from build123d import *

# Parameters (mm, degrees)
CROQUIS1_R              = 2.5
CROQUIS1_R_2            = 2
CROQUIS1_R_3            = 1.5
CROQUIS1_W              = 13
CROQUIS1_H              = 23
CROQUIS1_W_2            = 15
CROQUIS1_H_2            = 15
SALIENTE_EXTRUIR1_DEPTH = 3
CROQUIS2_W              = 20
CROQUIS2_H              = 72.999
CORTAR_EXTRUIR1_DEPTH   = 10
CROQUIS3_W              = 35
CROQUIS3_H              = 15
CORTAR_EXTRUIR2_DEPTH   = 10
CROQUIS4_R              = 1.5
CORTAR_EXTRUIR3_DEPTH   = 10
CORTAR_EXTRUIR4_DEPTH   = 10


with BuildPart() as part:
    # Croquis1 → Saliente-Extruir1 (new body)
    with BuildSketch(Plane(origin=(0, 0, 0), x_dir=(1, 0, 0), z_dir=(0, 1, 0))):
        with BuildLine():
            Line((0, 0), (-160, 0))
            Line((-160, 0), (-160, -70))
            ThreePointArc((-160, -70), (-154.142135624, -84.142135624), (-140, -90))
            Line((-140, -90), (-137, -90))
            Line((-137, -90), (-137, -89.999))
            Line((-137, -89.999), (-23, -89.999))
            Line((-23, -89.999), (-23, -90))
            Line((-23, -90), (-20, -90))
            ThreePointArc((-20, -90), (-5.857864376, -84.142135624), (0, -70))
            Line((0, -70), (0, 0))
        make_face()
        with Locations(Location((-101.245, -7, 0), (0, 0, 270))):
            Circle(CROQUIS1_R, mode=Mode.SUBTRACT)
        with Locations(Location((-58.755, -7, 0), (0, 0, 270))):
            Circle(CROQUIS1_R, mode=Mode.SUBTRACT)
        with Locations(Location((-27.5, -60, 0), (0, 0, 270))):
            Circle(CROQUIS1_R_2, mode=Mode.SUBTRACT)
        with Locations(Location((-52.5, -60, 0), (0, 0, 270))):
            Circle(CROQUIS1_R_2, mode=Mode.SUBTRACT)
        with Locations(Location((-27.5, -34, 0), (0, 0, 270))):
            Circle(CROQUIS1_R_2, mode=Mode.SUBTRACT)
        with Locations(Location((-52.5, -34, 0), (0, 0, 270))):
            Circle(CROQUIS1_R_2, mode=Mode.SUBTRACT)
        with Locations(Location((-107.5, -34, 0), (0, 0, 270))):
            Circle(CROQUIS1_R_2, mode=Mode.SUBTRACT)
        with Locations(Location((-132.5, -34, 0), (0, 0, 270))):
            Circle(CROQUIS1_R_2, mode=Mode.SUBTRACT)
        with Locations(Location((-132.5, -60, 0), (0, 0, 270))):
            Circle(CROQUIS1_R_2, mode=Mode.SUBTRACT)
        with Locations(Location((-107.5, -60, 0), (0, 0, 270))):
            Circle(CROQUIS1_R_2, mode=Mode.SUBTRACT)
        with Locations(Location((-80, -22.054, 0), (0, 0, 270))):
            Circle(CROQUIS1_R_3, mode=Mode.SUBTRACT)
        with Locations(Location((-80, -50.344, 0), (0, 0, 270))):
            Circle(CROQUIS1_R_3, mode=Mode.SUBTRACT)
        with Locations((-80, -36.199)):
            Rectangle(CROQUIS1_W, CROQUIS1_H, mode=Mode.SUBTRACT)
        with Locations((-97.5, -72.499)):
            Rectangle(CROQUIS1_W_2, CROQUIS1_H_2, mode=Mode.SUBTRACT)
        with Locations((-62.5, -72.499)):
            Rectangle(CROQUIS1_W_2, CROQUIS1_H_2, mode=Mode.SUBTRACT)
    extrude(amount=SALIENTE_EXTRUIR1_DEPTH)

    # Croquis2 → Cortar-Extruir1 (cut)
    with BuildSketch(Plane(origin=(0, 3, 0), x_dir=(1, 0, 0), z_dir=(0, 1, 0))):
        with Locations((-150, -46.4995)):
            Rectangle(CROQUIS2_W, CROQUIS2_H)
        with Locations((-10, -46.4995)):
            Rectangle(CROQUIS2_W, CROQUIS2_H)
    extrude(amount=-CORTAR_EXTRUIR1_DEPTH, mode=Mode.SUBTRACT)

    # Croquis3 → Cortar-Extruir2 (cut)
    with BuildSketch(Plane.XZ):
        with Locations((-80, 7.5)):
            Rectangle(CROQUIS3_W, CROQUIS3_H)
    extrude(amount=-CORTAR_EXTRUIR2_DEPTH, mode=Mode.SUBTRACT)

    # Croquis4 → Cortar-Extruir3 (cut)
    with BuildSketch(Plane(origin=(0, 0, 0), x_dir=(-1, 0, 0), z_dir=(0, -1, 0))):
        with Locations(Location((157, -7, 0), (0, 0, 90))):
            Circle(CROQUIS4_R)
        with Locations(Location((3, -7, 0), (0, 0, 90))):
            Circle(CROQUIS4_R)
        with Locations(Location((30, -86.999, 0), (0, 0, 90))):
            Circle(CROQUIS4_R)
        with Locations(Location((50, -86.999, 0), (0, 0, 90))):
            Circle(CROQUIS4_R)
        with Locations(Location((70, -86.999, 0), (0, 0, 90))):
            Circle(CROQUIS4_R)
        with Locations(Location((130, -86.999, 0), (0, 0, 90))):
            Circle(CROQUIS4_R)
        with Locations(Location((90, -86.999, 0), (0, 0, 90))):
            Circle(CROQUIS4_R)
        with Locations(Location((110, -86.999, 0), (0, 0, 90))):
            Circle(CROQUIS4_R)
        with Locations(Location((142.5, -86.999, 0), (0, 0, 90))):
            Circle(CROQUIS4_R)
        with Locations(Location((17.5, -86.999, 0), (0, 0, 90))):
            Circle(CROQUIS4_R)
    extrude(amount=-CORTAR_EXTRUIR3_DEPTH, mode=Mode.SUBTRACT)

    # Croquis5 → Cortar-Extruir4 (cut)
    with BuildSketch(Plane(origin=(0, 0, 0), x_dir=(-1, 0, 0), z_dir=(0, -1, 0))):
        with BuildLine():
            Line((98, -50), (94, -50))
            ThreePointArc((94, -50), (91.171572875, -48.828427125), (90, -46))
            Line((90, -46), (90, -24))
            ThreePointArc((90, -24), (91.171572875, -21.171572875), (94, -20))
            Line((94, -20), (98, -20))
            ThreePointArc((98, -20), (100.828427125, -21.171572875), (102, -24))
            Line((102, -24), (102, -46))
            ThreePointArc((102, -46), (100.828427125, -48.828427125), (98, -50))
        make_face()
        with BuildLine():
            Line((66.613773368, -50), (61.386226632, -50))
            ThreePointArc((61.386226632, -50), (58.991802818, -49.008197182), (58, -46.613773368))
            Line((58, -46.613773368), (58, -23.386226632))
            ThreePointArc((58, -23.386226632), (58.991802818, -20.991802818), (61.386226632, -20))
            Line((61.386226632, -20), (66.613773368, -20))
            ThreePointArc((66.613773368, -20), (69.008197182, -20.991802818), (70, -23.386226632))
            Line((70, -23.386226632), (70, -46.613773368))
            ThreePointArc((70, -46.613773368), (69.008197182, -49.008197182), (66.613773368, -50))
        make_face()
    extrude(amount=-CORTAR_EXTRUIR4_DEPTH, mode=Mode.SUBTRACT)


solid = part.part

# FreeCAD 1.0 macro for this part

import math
import FreeCAD as App
import Part
import Sketcher

V = App.Vector
Q = App.Units.Quantity


def add_polygon(sketch, points):
    """Adds a closed chain of lines whose ends are joined by coincident constraints."""
    first, n = sketch.GeometryCount, len(points)
    for a, b in zip(points, points[1:] + points[:1]):
        sketch.addGeometry(Part.LineSegment(App.Vector(*a, 0), App.Vector(*b, 0)), False)
    for i in range(n):
        sketch.addConstraint(Sketcher.Constraint("Coincident", first + i, 2, first + (i + 1) % n, 1))

doc = App.newDocument("Part")
body = doc.addObject("PartDesign::Body", "Body")

sketch1 = body.newObject("Sketcher::SketchObject", "Sketch")
sketch1.AttachmentSupport = (doc.getObject("XZ_Plane"), [""])
sketch1.MapMode = "FlatFace"
sketch1.addGeometry(Part.LineSegment(V(0, 0, 0), V(-160, 0, 0)), False)
sketch1.addGeometry(Part.LineSegment(V(-160, 0, 0), V(-160, 70, 0)), False)
sketch1.addGeometry(Part.ArcOfCircle(Part.Circle(V(-140, 70, 0), V(0, 0, 1), 20), math.radians(90), math.radians(180)), False)
sketch1.addGeometry(Part.LineSegment(V(-140, 90, 0), V(-137, 90, 0)), False)
sketch1.addGeometry(Part.LineSegment(V(-137, 90, 0), V(-137, 89.999, 0)), False)
sketch1.addGeometry(Part.LineSegment(V(-137, 89.999, 0), V(-23, 89.999, 0)), False)
sketch1.addGeometry(Part.LineSegment(V(-23, 89.999, 0), V(-23, 90, 0)), False)
sketch1.addGeometry(Part.LineSegment(V(-23, 90, 0), V(-20, 90, 0)), False)
sketch1.addGeometry(Part.ArcOfCircle(Part.Circle(V(-20, 70, 0), V(0, 0, 1), 20), math.radians(0), math.radians(90)), False)
sketch1.addGeometry(Part.LineSegment(V(0, 70, 0), V(0, 0, 0)), False)
add_polygon(sketch1, [(-90, 79.999), (-105, 79.999), (-105, 64.999), (-90, 64.999)])
sketch1.addGeometry(Part.Circle(V(-132.5, 60, 0), V(0, 0, 1), 2), False)
sketch1.addGeometry(Part.Circle(V(-107.5, 60, 0), V(0, 0, 1), 2), False)
add_polygon(sketch1, [(-55, 79.999), (-70, 79.999), (-70, 64.999), (-55, 64.999)])
sketch1.addGeometry(Part.Circle(V(-80, 50.344, 0), V(0, 0, 1), 1.5), False)
sketch1.addGeometry(Part.Circle(V(-52.5, 60, 0), V(0, 0, 1), 2), False)
sketch1.addGeometry(Part.Circle(V(-27.5, 60, 0), V(0, 0, 1), 2), False)
sketch1.addGeometry(Part.Circle(V(-132.5, 34, 0), V(0, 0, 1), 2), False)
sketch1.addGeometry(Part.Circle(V(-107.5, 34, 0), V(0, 0, 1), 2), False)
sketch1.addGeometry(Part.Circle(V(-101.245, 7, 0), V(0, 0, 1), 2.5), False)
add_polygon(sketch1, [(-73.5, 47.699), (-86.5, 47.699), (-86.5, 24.699), (-73.5, 24.699)])
sketch1.addGeometry(Part.Circle(V(-52.5, 34, 0), V(0, 0, 1), 2), False)
sketch1.addGeometry(Part.Circle(V(-27.5, 34, 0), V(0, 0, 1), 2), False)
sketch1.addGeometry(Part.Circle(V(-80, 22.054, 0), V(0, 0, 1), 1.5), False)
sketch1.addGeometry(Part.Circle(V(-58.755, 7, 0), V(0, 0, 1), 2.5), False)
sketch1.addConstraint([
    Sketcher.Constraint("Coincident", 0, 2, 1, 1),
    Sketcher.Constraint("Tangent", 1, 2, 2, 2),
    Sketcher.Constraint("Tangent", 2, 1, 3, 1),
    Sketcher.Constraint("Coincident", 3, 2, 4, 1),
    Sketcher.Constraint("Coincident", 4, 2, 5, 1),
    Sketcher.Constraint("Coincident", 5, 2, 6, 1),
    Sketcher.Constraint("Coincident", 6, 2, 7, 1),
    Sketcher.Constraint("Tangent", 7, 2, 8, 2),
    Sketcher.Constraint("Tangent", 8, 1, 9, 1),
    Sketcher.Constraint("Coincident", 9, 2, 0, 1),
    Sketcher.Constraint("Horizontal", 0),
    Sketcher.Constraint("Vertical", 1),
    Sketcher.Constraint("Horizontal", 3),
    Sketcher.Constraint("Vertical", 4),
    Sketcher.Constraint("Horizontal", 5),
    Sketcher.Constraint("Vertical", 6),
    Sketcher.Constraint("Horizontal", 7),
    Sketcher.Constraint("Vertical", 9),
    Sketcher.Constraint("Horizontal", 10),
    Sketcher.Constraint("Vertical", 11),
    Sketcher.Constraint("Horizontal", 12),
    Sketcher.Constraint("Vertical", 13),
    Sketcher.Constraint("Horizontal", 16),
    Sketcher.Constraint("Vertical", 17),
    Sketcher.Constraint("Horizontal", 18),
    Sketcher.Constraint("Vertical", 19),
    Sketcher.Constraint("Horizontal", 26),
    Sketcher.Constraint("Vertical", 27),
    Sketcher.Constraint("Horizontal", 28),
    Sketcher.Constraint("Vertical", 29),
    Sketcher.Constraint("Coincident", 9, 2, -1, 1),
    Sketcher.Constraint("Equal", 2, 8),
    Sketcher.Constraint("Equal", 14, 15),
    Sketcher.Constraint("Equal", 15, 21),
    Sketcher.Constraint("Equal", 21, 22),
    Sketcher.Constraint("Equal", 22, 23),
    Sketcher.Constraint("Equal", 23, 24),
    Sketcher.Constraint("Equal", 24, 30),
    Sketcher.Constraint("Equal", 30, 31),
    Sketcher.Constraint("Equal", 20, 32),
    Sketcher.Constraint("Equal", 25, 33),
    Sketcher.Constraint("Horizontal", 2, 3, 8, 3),
    Sketcher.Constraint("Horizontal", 14, 3, 15, 3),
    Sketcher.Constraint("Horizontal", 15, 3, 21, 3),
    Sketcher.Constraint("Horizontal", 21, 3, 22, 3),
    Sketcher.Constraint("Horizontal", 23, 3, 24, 3),
    Sketcher.Constraint("Horizontal", 24, 3, 30, 3),
    Sketcher.Constraint("Horizontal", 30, 3, 31, 3),
    Sketcher.Constraint("Horizontal", 25, 3, 33, 3),
    Sketcher.Constraint("Horizontal", 13, 2, 16, 2),
    Sketcher.Constraint("Horizontal", 12, 2, 17, 2),
    Sketcher.Constraint("Vertical", 14, 3, 23, 3),
    Sketcher.Constraint("Vertical", 15, 3, 24, 3),
    Sketcher.Constraint("Vertical", 21, 3, 30, 3),
    Sketcher.Constraint("Vertical", 22, 3, 31, 3),
    Sketcher.Constraint("Vertical", 20, 3, 32, 3),
    Sketcher.Constraint("Equal", 3, 7),
    Sketcher.Constraint("Equal", 12, 16),
    Sketcher.Constraint("Equal", 18, 11),
    Sketcher.Constraint("Diameter", 14, Q("4 mm")),
    Sketcher.Constraint("Diameter", 20, Q("3 mm")),
    Sketcher.Constraint("Diameter", 25, Q("5 mm")),
    Sketcher.Constraint("Radius", 2, Q("20 mm")),
    Sketcher.Constraint("DistanceX", 0, 2, 0, 1, Q("160 mm")),
    Sketcher.Constraint("DistanceX", 3, 1, 3, 2, Q("3 mm")),
    Sketcher.Constraint("DistanceX", 10, 2, 10, 1, Q("15 mm")),
    Sketcher.Constraint("DistanceX", 26, 2, 26, 1, Q("13 mm")),
    Sketcher.Constraint("DistanceY", 1, 1, 1, 2, Q("70 mm")),
    Sketcher.Constraint("DistanceY", 27, 2, 27, 1, Q("23 mm")),
    Sketcher.Constraint("DistanceY", -1, 1, 14, 3, Q("60 mm")),
    Sketcher.Constraint("DistanceX", 20, 3, -1, 1, Q("80 mm")),
    Sketcher.Constraint("DistanceY", -1, 1, 23, 3, Q("34 mm")),
    Sketcher.Constraint("DistanceY", -1, 1, 25, 3, Q("7 mm")),
    Sketcher.Constraint("DistanceX", 10, 2, -1, 1, Q("105 mm")),
    Sketcher.Constraint("DistanceX", 16, 2, -1, 1, Q("70 mm")),
    Sketcher.Constraint("DistanceX", 14, 3, 15, 3, Q("25 mm")),
    Sketcher.Constraint("DistanceX", 15, 3, 21, 3, Q("55 mm")),
    Sketcher.Constraint("DistanceX", 21, 3, 22, 3, Q("25 mm")),
    Sketcher.Constraint("DistanceY", 10, 2, 4, 2, Q("10 mm")),
    Sketcher.Constraint("DistanceX", 15, 3, 26, 2, Q("21 mm")),
    Sketcher.Constraint("DistanceX", 14, 3, -1, 1, Q("132.5 mm")),
    Sketcher.Constraint("DistanceY", 26, 2, 12, 2, Q("17.3 mm")),
    Sketcher.Constraint("DistanceY", 4, 2, 4, 1, Q("0.001 mm")),
    Sketcher.Constraint("DistanceY", 32, 3, 20, 3, Q("28.29 mm")),
    Sketcher.Constraint("DistanceX", 25, 3, 33, 3, Q("42.49 mm")),
    Sketcher.Constraint("DistanceY", -1, 1, 20, 3, Q("50.344 mm")),
    Sketcher.Constraint("DistanceX", 25, 3, -1, 1, Q("101.245 mm")),
])
pad1 = body.newObject("PartDesign::Pad", "Pad")
pad1.Profile = sketch1
pad1.Length = 3
pad1.Reversed = True

sketch2 = body.newObject("Sketcher::SketchObject", "Sketch001")
sketch2.AttachmentSupport = (doc.getObject("XZ_Plane"), [""])
sketch2.MapMode = "FlatFace"
sketch2.AttachmentOffset = App.Placement(V(0, 0, -3), App.Rotation())
add_polygon(sketch2, [(-160, 10), (-160, 82.999), (-140, 82.999), (-140, 10)])
add_polygon(sketch2, [(-20, 10), (-20, 82.999), (0, 82.999), (0, 10)])
sketch2.addConstraint([
    Sketcher.Constraint("Vertical", 0),
    Sketcher.Constraint("Horizontal", 1),
    Sketcher.Constraint("Vertical", 2),
    Sketcher.Constraint("Horizontal", 3),
    Sketcher.Constraint("Vertical", 4),
    Sketcher.Constraint("Horizontal", 5),
    Sketcher.Constraint("Vertical", 6),
    Sketcher.Constraint("Horizontal", 7),
    Sketcher.Constraint("PointOnObject", 5, 2, -2),
    Sketcher.Constraint("Horizontal", 1, 2, 4, 2),
    Sketcher.Constraint("Horizontal", 3, 2, 6, 2),
    Sketcher.Constraint("Equal", 3, 5),
    Sketcher.Constraint("DistanceX", 1, 1, 1, 2, Q("20 mm")),
    Sketcher.Constraint("DistanceX", 0, 2, -1, 1, Q("160 mm")),
    Sketcher.Constraint("DistanceY", -1, 1, 2, 2, Q("10 mm")),
    Sketcher.Constraint("DistanceY", 0, 1, 0, 2, Q("72.999 mm")),
])
pocket1 = body.newObject("PartDesign::Pocket", "Pocket")
pocket1.Profile = sketch2
pocket1.Length = 10
pocket1.Reversed = True

sketch3 = body.newObject("Sketcher::SketchObject", "Sketch002")
sketch3.AttachmentSupport = (doc.getObject("XZ_Plane"), [""])
sketch3.MapMode = "FlatFace"
add_polygon(sketch3, [(-97.5, 15), (-97.5, 0), (-62.5, 0), (-62.5, 15)])
sketch3.addConstraint([
    Sketcher.Constraint("Vertical", 0),
    Sketcher.Constraint("Horizontal", 1),
    Sketcher.Constraint("Vertical", 2),
    Sketcher.Constraint("Horizontal", 3),
    Sketcher.Constraint("PointOnObject", 0, 2, -1),
    Sketcher.Constraint("DistanceX", 1, 1, 1, 2, Q("35 mm")),
    Sketcher.Constraint("DistanceY", 0, 2, 0, 1, Q("15 mm")),
    Sketcher.Constraint("DistanceX", 0, 2, -1, 1, Q("97.5 mm")),
])
pocket2 = body.newObject("PartDesign::Pocket", "Pocket001")
pocket2.Profile = sketch3
pocket2.Length = 10

sketch4 = body.newObject("Sketcher::SketchObject", "Sketch003")
sketch4.AttachmentSupport = (doc.getObject("XZ_Plane"), [""])
sketch4.MapMode = "FlatFace"
sketch4.addGeometry([
    Part.Circle(V(-157, 7, 0), V(0, 0, 1), 1.5),
    Part.Circle(V(-3, 7, 0), V(0, 0, 1), 1.5),
    Part.Circle(V(-30, 86.999, 0), V(0, 0, 1), 1.5),
    Part.Circle(V(-50, 86.999, 0), V(0, 0, 1), 1.5),
    Part.Circle(V(-70, 86.999, 0), V(0, 0, 1), 1.5),
    Part.Circle(V(-130, 86.999, 0), V(0, 0, 1), 1.5),
    Part.Circle(V(-90, 86.999, 0), V(0, 0, 1), 1.5),
    Part.Circle(V(-110, 86.999, 0), V(0, 0, 1), 1.5),
    Part.Circle(V(-142.5, 86.999, 0), V(0, 0, 1), 1.5),
    Part.Circle(V(-17.5, 86.999, 0), V(0, 0, 1), 1.5),
], False)
sketch4.addConstraint([
    Sketcher.Constraint("Equal", 0, 1),
    Sketcher.Constraint("Equal", 1, 2),
    Sketcher.Constraint("Equal", 2, 3),
    Sketcher.Constraint("Equal", 3, 4),
    Sketcher.Constraint("Equal", 4, 5),
    Sketcher.Constraint("Equal", 5, 6),
    Sketcher.Constraint("Equal", 6, 7),
    Sketcher.Constraint("Equal", 7, 8),
    Sketcher.Constraint("Equal", 8, 9),
    Sketcher.Constraint("Horizontal", 0, 3, 1, 3),
    Sketcher.Constraint("Horizontal", 2, 3, 3, 3),
    Sketcher.Constraint("Horizontal", 3, 3, 4, 3),
    Sketcher.Constraint("Horizontal", 4, 3, 5, 3),
    Sketcher.Constraint("Horizontal", 5, 3, 6, 3),
    Sketcher.Constraint("Horizontal", 6, 3, 7, 3),
    Sketcher.Constraint("Horizontal", 7, 3, 8, 3),
    Sketcher.Constraint("Horizontal", 8, 3, 9, 3),
    Sketcher.Constraint("Diameter", 0, Q("3 mm")),
    Sketcher.Constraint("DistanceX", 0, 3, -1, 1, Q("157 mm")),
    Sketcher.Constraint("DistanceY", -1, 1, 0, 3, Q("7 mm")),
    Sketcher.Constraint("DistanceX", 1, 3, -1, 1, Q("3 mm")),
    Sketcher.Constraint("DistanceX", 2, 3, -1, 1, Q("30 mm")),
    Sketcher.Constraint("DistanceX", 3, 3, -1, 1, Q("50 mm")),
    Sketcher.Constraint("DistanceX", 4, 3, -1, 1, Q("70 mm")),
    Sketcher.Constraint("DistanceX", 5, 3, -1, 1, Q("130 mm")),
    Sketcher.Constraint("DistanceX", 6, 3, -1, 1, Q("90 mm")),
    Sketcher.Constraint("DistanceX", 7, 3, -1, 1, Q("110 mm")),
    Sketcher.Constraint("DistanceX", 8, 3, -1, 1, Q("142.5 mm")),
    Sketcher.Constraint("DistanceX", 9, 3, -1, 1, Q("17.5 mm")),
    Sketcher.Constraint("DistanceY", -1, 1, 2, 3, Q("86.999 mm")),
])
pocket3 = body.newObject("PartDesign::Pocket", "Pocket002")
pocket3.Profile = sketch4
pocket3.Length = 10

sketch5 = body.newObject("Sketcher::SketchObject", "Sketch004")
sketch5.AttachmentSupport = (doc.getObject("XZ_Plane"), [""])
sketch5.MapMode = "FlatFace"
sketch5.addGeometry([
    Part.LineSegment(V(-94, 50, 0), V(-98, 50, 0)),
    Part.ArcOfCircle(Part.Circle(V(-98, 46, 0), V(0, 0, 1), 4), math.radians(90), math.radians(180)),
    Part.LineSegment(V(-102, 46, 0), V(-102, 24, 0)),
    Part.ArcOfCircle(Part.Circle(V(-98, 24, 0), V(0, 0, 1), 4), math.radians(180), math.radians(270)),
    Part.LineSegment(V(-98, 20, 0), V(-94, 20, 0)),
    Part.ArcOfCircle(Part.Circle(V(-94, 24, 0), V(0, 0, 1), 4), math.radians(-90), math.radians(0)),
    Part.LineSegment(V(-90, 24, 0), V(-90, 46, 0)),
    Part.ArcOfCircle(Part.Circle(V(-94, 46, 0), V(0, 0, 1), 4), math.radians(0), math.radians(90)),
    Part.LineSegment(V(-61.386227, 50, 0), V(-66.613773, 50, 0)),
    Part.ArcOfCircle(Part.Circle(V(-66.613773, 46.613773, 0), V(0, 0, 1), 3.386227), math.radians(90), math.radians(180)),
    Part.LineSegment(V(-70, 46.613773, 0), V(-70, 23.386227, 0)),
    Part.ArcOfCircle(Part.Circle(V(-66.613773, 23.386227, 0), V(0, 0, 1), 3.386227), math.radians(180), math.radians(270)),
    Part.LineSegment(V(-66.613773, 20, 0), V(-61.386227, 20, 0)),
    Part.ArcOfCircle(Part.Circle(V(-61.386227, 23.386227, 0), V(0, 0, 1), 3.386227), math.radians(-90), math.radians(0)),
    Part.LineSegment(V(-58, 23.386227, 0), V(-58, 46.613773, 0)),
    Part.ArcOfCircle(Part.Circle(V(-61.386227, 46.613773, 0), V(0, 0, 1), 3.386227), math.radians(0), math.radians(90)),
], False)
sketch5.addConstraint([
    Sketcher.Constraint("Tangent", 0, 2, 1, 1),
    Sketcher.Constraint("Tangent", 1, 2, 2, 1),
    Sketcher.Constraint("Tangent", 2, 2, 3, 1),
    Sketcher.Constraint("Tangent", 3, 2, 4, 1),
    Sketcher.Constraint("Tangent", 4, 2, 5, 1),
    Sketcher.Constraint("Tangent", 5, 2, 6, 1),
    Sketcher.Constraint("Tangent", 6, 2, 7, 1),
    Sketcher.Constraint("Tangent", 7, 2, 0, 1),
    Sketcher.Constraint("Tangent", 8, 2, 9, 1),
    Sketcher.Constraint("Tangent", 9, 2, 10, 1),
    Sketcher.Constraint("Tangent", 10, 2, 11, 1),
    Sketcher.Constraint("Tangent", 11, 2, 12, 1),
    Sketcher.Constraint("Tangent", 12, 2, 13, 1),
    Sketcher.Constraint("Tangent", 13, 2, 14, 1),
    Sketcher.Constraint("Tangent", 14, 2, 15, 1),
    Sketcher.Constraint("Tangent", 15, 2, 8, 1),
    Sketcher.Constraint("Horizontal", 0),
    Sketcher.Constraint("Vertical", 2),
    Sketcher.Constraint("Horizontal", 4),
    Sketcher.Constraint("Vertical", 6),
    Sketcher.Constraint("Horizontal", 8),
    Sketcher.Constraint("Vertical", 10),
    Sketcher.Constraint("Horizontal", 12),
    Sketcher.Constraint("Vertical", 14),
    Sketcher.Constraint("Equal", 1, 3),
    Sketcher.Constraint("Equal", 3, 5),
    Sketcher.Constraint("Equal", 5, 7),
    Sketcher.Constraint("Equal", 9, 11),
    Sketcher.Constraint("Equal", 11, 13),
    Sketcher.Constraint("Equal", 13, 15),
    Sketcher.Constraint("Horizontal", 7, 2, 8, 2),
    Sketcher.Constraint("Horizontal", 4, 2, 11, 2),
    Sketcher.Constraint("Radius", 1, Q("4 mm")),
    Sketcher.Constraint("DistanceX", 0, 2, 0, 1, Q("4 mm")),
    Sketcher.Constraint("DistanceY", 2, 2, 2, 1, Q("22 mm")),
    Sketcher.Constraint("DistanceX", 1, 3, -1, 1, Q("98 mm")),
    Sketcher.Constraint("DistanceY", -1, 1, 1, 3, Q("46 mm")),
    Sketcher.Constraint("DistanceX", 9, 2, -1, 1, Q("70 mm")),
    Sketcher.Constraint("DistanceX", 13, 2, -1, 1, Q("58 mm")),
    Sketcher.Constraint("Radius", 9, Q("3.386227 mm")),
])
pocket4 = body.newObject("PartDesign::Pocket", "Pocket003")
pocket4.Profile = sketch5
pocket4.Length = 10

doc.recompute()
